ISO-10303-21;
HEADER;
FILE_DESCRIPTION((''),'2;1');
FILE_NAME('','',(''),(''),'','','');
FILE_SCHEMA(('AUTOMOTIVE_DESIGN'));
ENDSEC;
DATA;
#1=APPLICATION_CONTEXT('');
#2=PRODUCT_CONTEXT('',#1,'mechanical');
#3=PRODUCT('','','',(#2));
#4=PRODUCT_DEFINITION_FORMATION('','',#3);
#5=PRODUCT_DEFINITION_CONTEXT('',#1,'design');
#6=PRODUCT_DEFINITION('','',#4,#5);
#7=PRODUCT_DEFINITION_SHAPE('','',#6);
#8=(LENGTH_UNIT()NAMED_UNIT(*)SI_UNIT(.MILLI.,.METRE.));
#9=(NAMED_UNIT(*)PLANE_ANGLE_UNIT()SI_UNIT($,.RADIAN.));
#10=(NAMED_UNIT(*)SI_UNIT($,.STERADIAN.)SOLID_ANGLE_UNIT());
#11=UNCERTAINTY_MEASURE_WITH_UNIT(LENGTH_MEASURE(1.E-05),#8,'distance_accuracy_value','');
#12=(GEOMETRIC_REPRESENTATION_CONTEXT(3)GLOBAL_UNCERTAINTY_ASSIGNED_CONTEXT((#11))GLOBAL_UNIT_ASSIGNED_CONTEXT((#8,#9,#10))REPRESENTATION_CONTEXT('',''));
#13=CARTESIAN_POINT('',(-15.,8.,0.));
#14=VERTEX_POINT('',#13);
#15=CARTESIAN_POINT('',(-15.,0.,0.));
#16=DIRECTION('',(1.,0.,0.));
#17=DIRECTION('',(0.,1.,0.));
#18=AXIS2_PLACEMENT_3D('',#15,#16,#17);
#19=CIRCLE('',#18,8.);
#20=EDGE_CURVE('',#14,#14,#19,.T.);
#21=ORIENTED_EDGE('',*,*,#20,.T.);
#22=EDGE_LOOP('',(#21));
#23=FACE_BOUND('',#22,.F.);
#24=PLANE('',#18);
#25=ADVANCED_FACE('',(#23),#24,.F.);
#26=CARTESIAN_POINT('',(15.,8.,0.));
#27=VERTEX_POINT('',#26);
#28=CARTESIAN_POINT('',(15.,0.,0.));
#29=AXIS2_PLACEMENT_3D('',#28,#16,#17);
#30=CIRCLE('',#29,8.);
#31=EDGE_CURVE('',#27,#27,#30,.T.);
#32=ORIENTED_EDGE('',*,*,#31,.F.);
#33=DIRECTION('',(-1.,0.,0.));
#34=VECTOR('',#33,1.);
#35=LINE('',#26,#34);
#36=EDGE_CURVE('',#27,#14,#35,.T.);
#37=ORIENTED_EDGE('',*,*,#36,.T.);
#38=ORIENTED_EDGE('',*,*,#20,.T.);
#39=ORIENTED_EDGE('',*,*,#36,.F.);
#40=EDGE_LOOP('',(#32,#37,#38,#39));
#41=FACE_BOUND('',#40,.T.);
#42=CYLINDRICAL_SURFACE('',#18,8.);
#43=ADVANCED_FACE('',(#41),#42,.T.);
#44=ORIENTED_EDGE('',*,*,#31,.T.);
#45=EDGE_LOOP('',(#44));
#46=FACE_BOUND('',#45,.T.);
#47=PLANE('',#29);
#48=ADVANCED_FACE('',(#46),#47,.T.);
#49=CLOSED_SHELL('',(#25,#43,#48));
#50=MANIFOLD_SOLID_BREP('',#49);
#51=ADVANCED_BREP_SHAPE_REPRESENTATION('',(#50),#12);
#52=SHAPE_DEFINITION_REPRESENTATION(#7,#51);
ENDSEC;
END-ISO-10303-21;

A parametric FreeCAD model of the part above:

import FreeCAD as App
import Part
import Sketcher

doc = App.newDocument("Part")
body = doc.addObject("PartDesign::Body", "Body")

# Sketch on XY plane
sketch1 = body.newObject("Sketcher::SketchObject", "Sketch")
sketch1.AttachmentSupport = (doc.getObject("XY_Plane"), [""])
sketch1.MapMode = "FlatFace"
sketch1.addGeometry(Part.LineSegment(App.Vector(15, 0, 0), App.Vector(15, 8, 0)), False)
sketch1.addGeometry(Part.LineSegment(App.Vector(15, 8, 0), App.Vector(-15, 8, 0)), False)
sketch1.addGeometry(Part.LineSegment(App.Vector(-15, 8, 0), App.Vector(-15, 0, 0)), False)
sketch1.addGeometry(Part.LineSegment(App.Vector(-15, 0, 0), App.Vector(15, 0, 0)), False)
sketch1.addConstraint(Sketcher.Constraint("Coincident", 0, 2, 1, 1))
sketch1.addConstraint(Sketcher.Constraint("Coincident", 1, 2, 2, 1))
sketch1.addConstraint(Sketcher.Constraint("Coincident", 2, 2, 3, 1))
sketch1.addConstraint(Sketcher.Constraint("Coincident", 3, 2, 0, 1))
sketch1.addConstraint(Sketcher.Constraint("Vertical", 0))
sketch1.addConstraint(Sketcher.Constraint("Horizontal", 1))
sketch1.addConstraint(Sketcher.Constraint("Vertical", 2))
sketch1.addConstraint(Sketcher.Constraint("Horizontal", 3))
sketch1.addConstraint(Sketcher.Constraint("Symmetric", 2, 2, 3, 2, -1, 1))
sketch1.addConstraint(Sketcher.Constraint("DistanceX", 1, 2, 1, 1, 30.0))
sketch1.addConstraint(Sketcher.Constraint("DistanceY", 0, 1, 0, 2, 8.0))
revolution = body.newObject("PartDesign::Revolution", "Revolution")
revolution.Profile = sketch1
revolution.ReferenceAxis = (sketch1, ["H_Axis"])
revolution.Angle = 360

doc.recompute()
